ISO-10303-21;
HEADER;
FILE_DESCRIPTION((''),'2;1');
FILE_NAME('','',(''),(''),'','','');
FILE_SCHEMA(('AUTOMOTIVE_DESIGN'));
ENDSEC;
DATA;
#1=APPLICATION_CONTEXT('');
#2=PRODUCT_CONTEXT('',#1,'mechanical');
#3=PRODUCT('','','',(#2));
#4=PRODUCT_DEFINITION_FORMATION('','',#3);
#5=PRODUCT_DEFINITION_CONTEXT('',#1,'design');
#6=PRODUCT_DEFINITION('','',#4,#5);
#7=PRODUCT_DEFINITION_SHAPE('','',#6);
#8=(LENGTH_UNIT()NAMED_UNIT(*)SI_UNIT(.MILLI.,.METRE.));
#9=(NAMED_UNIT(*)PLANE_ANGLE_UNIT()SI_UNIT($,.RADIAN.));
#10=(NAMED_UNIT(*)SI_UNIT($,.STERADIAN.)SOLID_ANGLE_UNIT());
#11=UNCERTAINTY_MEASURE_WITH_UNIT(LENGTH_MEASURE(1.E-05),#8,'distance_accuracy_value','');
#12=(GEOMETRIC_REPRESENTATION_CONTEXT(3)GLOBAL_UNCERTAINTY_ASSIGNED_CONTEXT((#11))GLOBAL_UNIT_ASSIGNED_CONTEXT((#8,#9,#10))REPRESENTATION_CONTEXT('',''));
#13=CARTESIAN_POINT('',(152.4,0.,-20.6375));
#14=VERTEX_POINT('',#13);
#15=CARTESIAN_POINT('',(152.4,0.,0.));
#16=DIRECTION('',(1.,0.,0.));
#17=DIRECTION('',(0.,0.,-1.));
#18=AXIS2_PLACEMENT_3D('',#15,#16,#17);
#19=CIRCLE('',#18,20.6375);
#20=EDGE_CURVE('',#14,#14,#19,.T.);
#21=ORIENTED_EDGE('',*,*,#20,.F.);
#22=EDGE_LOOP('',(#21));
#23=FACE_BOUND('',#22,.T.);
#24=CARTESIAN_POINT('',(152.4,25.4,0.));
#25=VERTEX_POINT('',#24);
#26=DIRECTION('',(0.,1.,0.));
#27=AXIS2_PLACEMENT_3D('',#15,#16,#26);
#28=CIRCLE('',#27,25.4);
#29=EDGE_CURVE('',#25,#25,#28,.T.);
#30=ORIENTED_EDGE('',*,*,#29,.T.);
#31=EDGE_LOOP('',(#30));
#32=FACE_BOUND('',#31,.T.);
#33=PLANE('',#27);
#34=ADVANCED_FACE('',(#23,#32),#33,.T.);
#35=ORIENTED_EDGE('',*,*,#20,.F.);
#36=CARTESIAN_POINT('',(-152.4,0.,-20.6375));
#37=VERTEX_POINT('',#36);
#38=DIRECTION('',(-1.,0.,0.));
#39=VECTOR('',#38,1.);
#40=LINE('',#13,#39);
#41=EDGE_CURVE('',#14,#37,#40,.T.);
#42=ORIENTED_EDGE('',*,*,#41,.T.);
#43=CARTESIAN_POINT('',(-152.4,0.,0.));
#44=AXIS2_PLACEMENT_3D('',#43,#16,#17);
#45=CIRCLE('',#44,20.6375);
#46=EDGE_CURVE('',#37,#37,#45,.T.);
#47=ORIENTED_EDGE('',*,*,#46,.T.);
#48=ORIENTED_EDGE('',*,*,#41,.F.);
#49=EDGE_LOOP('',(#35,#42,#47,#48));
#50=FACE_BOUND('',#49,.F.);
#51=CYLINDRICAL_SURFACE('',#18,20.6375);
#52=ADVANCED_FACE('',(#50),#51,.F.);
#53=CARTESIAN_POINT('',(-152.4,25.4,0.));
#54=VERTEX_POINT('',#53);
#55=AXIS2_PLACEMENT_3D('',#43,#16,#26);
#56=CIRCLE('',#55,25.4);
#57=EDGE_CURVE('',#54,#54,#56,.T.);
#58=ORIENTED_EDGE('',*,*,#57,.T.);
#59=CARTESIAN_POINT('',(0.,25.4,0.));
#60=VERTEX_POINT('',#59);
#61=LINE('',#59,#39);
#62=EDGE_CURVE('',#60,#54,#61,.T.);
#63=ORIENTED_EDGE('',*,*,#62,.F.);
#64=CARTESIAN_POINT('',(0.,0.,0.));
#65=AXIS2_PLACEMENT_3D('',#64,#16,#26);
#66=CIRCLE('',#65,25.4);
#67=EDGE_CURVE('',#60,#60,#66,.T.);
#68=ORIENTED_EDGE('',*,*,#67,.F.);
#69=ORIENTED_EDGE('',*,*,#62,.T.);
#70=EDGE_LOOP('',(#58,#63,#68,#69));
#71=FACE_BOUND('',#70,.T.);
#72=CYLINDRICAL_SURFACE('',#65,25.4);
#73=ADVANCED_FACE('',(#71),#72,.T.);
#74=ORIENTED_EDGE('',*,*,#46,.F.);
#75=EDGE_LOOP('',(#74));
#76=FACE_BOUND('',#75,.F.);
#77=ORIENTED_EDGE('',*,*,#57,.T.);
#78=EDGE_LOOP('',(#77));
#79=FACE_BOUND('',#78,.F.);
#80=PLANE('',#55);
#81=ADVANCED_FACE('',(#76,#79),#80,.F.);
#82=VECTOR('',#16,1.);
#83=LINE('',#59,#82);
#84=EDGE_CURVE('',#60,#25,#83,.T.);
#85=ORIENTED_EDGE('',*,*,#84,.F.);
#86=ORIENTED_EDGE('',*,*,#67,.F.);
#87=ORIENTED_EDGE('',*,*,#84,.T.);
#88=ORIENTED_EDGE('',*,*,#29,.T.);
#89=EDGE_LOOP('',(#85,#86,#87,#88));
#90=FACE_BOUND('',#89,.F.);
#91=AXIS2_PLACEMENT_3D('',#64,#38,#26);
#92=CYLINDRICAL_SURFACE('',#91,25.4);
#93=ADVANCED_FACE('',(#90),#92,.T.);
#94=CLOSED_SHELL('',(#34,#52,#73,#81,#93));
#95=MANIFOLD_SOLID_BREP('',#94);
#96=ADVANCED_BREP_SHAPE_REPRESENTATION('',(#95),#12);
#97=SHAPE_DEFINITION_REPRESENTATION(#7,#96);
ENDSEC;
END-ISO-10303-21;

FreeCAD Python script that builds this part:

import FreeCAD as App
import Part
import Sketcher
from FreeCAD import Vector
Q = App.Units.Quantity

doc = App.newDocument("Part")
body = doc.addObject("PartDesign::Body", "Body")

# Sketch on YZ plane
sketch1 = body.newObject("Sketcher::SketchObject", "Sketch")
sketch1.AttachmentSupport = (doc.getObject("YZ_Plane"), [""])
sketch1.MapMode = "FlatFace"
sketch1.addGeometry(Part.Circle(Vector(0, 0, 0), Vector(0, 0, 1), 25), False)
sketch1.addConstraint(Sketcher.Constraint("Coincident", 0, 3, -1, 1))
sketch1.addConstraint(Sketcher.Constraint("Diameter", 0, Q("2 in")))
pad1 = body.newObject("PartDesign::Pad", "Pad")
pad1.Profile = sketch1
pad1.Length = Q("12 in")
pad1.Midplane = True

# Sketch on YZ plane
sketch2 = body.newObject("Sketcher::SketchObject", "Sketch001")
sketch2.AttachmentSupport = (doc.getObject("YZ_Plane"), [""])
sketch2.MapMode = "FlatFace"
sketch2.AttachmentOffset = App.Placement(Vector(0, 0, 6 * 25.4), App.Rotation())
sketch2.addGeometry(Part.Circle(Vector(0, 0, 0), Vector(0, 0, 1), 21), False)
sketch2.addConstraint(Sketcher.Constraint("Coincident", 0, 3, -1, 1))
sketch2.addConstraint(Sketcher.Constraint("Diameter", 0, Q("1.625 in")))
pocket1 = body.newObject("PartDesign::Pocket", "Pocket")
pocket1.Profile = sketch2
pocket1.Type = "ThroughAll"

doc.recompute()
